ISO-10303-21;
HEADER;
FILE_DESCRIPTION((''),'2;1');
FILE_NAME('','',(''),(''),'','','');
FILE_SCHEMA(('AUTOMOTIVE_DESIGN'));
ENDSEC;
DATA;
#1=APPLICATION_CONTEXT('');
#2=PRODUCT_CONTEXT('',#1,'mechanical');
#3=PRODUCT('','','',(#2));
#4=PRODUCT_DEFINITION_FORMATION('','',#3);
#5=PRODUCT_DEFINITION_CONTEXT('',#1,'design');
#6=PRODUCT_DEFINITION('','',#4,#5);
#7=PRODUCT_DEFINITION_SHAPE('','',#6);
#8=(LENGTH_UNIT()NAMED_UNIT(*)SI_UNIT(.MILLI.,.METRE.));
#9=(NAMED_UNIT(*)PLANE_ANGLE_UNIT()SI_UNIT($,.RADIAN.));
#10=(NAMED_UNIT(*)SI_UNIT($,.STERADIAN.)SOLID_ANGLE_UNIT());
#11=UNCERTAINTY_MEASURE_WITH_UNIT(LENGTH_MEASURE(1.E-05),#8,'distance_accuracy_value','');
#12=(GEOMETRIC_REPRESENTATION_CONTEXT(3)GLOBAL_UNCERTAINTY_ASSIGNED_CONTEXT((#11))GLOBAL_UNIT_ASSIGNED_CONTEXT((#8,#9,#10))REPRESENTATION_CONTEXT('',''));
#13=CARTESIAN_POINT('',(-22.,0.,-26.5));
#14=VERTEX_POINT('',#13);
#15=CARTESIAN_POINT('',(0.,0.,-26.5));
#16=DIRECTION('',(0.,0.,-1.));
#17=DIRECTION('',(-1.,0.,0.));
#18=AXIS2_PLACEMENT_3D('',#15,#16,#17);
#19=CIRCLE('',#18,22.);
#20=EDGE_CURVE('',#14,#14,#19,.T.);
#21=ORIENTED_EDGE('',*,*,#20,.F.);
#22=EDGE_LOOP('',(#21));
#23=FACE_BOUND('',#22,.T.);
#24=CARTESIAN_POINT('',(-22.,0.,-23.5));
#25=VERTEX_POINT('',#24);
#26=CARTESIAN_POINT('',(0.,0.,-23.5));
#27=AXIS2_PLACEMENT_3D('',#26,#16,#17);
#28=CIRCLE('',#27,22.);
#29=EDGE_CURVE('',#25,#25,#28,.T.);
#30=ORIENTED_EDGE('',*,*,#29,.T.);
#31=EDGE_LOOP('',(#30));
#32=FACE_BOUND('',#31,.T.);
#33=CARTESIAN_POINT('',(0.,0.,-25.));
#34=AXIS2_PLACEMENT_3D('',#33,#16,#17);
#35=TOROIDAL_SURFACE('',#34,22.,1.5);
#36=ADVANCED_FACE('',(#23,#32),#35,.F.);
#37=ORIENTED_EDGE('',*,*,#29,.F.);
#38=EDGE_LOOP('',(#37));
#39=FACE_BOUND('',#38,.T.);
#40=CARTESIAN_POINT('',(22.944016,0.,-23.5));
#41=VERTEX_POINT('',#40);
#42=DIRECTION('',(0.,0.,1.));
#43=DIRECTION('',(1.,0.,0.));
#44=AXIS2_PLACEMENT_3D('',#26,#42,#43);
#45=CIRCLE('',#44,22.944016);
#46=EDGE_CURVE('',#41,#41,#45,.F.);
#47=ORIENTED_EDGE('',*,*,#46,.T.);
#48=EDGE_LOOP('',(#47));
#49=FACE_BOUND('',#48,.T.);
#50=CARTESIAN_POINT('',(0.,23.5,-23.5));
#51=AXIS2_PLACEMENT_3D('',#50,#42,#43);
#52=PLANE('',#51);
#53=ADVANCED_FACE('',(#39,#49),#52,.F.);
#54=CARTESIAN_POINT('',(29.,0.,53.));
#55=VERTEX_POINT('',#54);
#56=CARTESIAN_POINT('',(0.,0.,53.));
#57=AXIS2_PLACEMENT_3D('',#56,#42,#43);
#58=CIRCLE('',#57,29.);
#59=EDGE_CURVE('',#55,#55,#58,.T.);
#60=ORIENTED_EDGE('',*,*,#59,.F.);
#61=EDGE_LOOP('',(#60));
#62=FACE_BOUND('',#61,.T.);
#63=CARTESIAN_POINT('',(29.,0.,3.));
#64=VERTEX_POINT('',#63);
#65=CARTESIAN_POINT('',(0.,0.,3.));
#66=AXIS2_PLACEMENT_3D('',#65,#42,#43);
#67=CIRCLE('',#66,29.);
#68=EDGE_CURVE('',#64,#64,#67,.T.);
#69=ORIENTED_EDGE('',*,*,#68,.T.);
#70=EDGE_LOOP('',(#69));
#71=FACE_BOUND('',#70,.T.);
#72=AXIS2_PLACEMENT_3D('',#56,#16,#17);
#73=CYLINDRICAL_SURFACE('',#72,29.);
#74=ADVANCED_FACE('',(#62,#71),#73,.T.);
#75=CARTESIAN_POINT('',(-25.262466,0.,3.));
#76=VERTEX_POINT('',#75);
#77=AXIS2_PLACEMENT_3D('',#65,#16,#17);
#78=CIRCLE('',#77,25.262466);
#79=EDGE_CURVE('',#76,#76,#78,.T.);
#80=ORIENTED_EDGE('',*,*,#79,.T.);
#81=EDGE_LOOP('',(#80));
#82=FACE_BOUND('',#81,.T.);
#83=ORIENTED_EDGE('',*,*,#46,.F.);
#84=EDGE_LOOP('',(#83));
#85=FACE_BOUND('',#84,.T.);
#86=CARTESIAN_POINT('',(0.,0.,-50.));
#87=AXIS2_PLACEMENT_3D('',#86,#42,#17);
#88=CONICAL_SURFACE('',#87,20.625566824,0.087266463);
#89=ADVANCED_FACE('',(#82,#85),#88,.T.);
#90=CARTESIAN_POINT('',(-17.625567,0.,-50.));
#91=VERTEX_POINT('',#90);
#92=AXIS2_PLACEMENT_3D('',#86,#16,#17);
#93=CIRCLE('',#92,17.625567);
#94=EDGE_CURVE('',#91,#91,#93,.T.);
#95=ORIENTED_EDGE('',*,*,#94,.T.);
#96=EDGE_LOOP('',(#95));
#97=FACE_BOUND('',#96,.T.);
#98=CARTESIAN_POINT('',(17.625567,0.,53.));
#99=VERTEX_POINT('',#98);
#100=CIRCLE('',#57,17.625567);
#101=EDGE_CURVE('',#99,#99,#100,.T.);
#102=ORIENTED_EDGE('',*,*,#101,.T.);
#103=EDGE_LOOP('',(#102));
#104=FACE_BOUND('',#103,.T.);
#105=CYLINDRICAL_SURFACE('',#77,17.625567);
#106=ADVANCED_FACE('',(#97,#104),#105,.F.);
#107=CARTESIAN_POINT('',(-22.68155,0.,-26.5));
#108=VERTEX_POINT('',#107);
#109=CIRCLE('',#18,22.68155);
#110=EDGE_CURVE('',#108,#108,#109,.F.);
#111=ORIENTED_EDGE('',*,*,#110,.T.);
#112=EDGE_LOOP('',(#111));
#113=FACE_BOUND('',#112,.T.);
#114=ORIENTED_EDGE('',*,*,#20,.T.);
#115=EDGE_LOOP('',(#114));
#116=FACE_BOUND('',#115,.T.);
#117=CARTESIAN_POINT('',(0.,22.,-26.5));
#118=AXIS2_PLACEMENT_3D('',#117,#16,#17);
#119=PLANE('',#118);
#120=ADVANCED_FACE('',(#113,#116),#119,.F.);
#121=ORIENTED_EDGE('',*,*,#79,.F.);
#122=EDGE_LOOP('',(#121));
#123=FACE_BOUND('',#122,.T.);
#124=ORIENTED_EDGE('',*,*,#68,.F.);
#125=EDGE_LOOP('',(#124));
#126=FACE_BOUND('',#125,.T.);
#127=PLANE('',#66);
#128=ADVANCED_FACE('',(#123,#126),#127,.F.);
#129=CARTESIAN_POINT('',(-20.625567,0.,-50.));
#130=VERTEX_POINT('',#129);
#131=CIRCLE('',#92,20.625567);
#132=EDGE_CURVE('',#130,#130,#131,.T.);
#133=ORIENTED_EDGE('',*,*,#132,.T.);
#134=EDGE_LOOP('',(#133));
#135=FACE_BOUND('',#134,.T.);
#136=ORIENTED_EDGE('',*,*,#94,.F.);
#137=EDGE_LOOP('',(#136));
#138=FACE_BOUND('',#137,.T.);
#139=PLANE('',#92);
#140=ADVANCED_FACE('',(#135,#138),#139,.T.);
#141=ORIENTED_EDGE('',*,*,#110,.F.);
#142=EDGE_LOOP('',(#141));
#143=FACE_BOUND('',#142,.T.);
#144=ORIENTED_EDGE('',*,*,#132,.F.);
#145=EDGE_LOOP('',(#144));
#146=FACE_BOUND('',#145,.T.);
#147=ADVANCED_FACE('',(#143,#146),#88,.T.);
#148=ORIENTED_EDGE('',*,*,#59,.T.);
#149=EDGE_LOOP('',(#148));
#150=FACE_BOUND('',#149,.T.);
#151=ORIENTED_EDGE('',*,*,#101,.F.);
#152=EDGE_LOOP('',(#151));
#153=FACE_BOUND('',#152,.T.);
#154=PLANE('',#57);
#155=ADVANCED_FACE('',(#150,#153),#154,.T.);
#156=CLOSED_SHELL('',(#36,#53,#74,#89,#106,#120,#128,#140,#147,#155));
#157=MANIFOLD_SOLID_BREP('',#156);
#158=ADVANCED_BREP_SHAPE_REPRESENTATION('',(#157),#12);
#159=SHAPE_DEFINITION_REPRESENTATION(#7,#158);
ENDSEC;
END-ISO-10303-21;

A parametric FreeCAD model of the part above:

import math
import FreeCAD as App
import Part
import Sketcher
from FreeCAD import Vector
Q = App.Units.Quantity


def faces_at(feature, points):
    """Names of the faces that lie closest to the given points."""
    faces = feature.Shape.Faces
    near = lambda p: min(range(len(faces)), key=lambda i: faces[i].distToShape(Part.Vertex(*p))[0])
    return sorted({f"Face{near(p) + 1}" for p in points})

doc = App.newDocument("Part")
body = doc.addObject("PartDesign::Body", "Body")

sketch1 = doc.addObject("Sketcher::SketchObject", "Sketch")
body.addObject(sketch1)
sketch1.AttachmentSupport = (doc.XY_Plane, [""])
sketch1.MapMode = "FlatFace"
sketch1.AttachmentOffset = App.Placement(Vector(0, 0, -50), App.Rotation())
sketch1.addGeometry(Part.Circle(Vector(0, 0, 0), Vector(0, 0, 1), 20.625567), False)
sketch1.addConstraint([
    Sketcher.Constraint("Coincident", 0, 3, -1, 1),
    Sketcher.Constraint("Diameter", 0, Q("41.251134 mm")),
])
pad1 = doc.addObject("PartDesign::Pad", "Pad")
body.addObject(pad1)
pad1.Profile = sketch1
pad1.Length = 53
doc.recompute()

datumplane = doc.addObject("PartDesign::Plane", "DatumPlane")
body.addObject(datumplane)
datumplane.AttachmentSupport = (doc.XY_Plane, [""])
datumplane.MapMode = "FlatFace"
datumplane.AttachmentOffset = App.Placement(Vector(0, 0, -50), App.Rotation())
draft = doc.addObject("PartDesign::Draft", "Draft")
body.addObject(draft)
draft.Base = (pad1, faces_at(pad1, [(20.626, 0, -23.5)]))
draft.NeutralPlane = (datumplane, [""])
draft.Angle = 5
draft.Reversed = True

sketch2 = doc.addObject("Sketcher::SketchObject", "Sketch001")
body.addObject(sketch2)
sketch2.AttachmentSupport = (doc.XY_Plane, [""])
sketch2.MapMode = "FlatFace"
sketch2.AttachmentOffset = App.Placement(Vector(0, 0, -50), App.Rotation())
sketch2.addGeometry(Part.Circle(Vector(0, 0, 0), Vector(0, 0, 1), 17.625567), False)
sketch2.addConstraint([
    Sketcher.Constraint("Coincident", 0, 3, -1, 1),
    Sketcher.Constraint("Diameter", 0, Q("35.251134 mm")),
])
pocket1 = doc.addObject("PartDesign::Pocket", "Pocket")
body.addObject(pocket1)
pocket1.Profile = sketch2
pocket1.Type = "ThroughAll"
pocket1.Reversed = True

sketch3 = doc.addObject("Sketcher::SketchObject", "Sketch002")
body.addObject(sketch3)
sketch3.AttachmentSupport = (doc.YZ_Plane, [""])
sketch3.MapMode = "FlatFace"
sketch3.addGeometry([
    Part.LineSegment(Vector(22, -26.5, 0), Vector(23.5, -26.5, 0)),
    Part.LineSegment(Vector(23.5, -26.5, 0), Vector(23.5, -23.5, 0)),
    Part.LineSegment(Vector(23.5, -23.5, 0), Vector(22, -23.5, 0)),
    Part.ArcOfCircle(Part.Circle(Vector(22, -25, 0), Vector(0, 0, 1), 1.5), math.radians(90), math.radians(270)),
], False)
sketch3.addConstraint([
    Sketcher.Constraint("Coincident", 0, 2, 1, 1),
    Sketcher.Constraint("Coincident", 1, 2, 2, 1),
    Sketcher.Constraint("Tangent", 2, 2, 3, 1),
    Sketcher.Constraint("Tangent", 3, 2, 0, 1),
    Sketcher.Constraint("Horizontal", 0),
    Sketcher.Constraint("Vertical", 1),
    Sketcher.Constraint("Horizontal", 2),
    Sketcher.Constraint("Radius", 3, Q("1.5 mm")),
    Sketcher.Constraint("DistanceX", 0, 1, 0, 2, Q("1.5 mm")),
    Sketcher.Constraint("DistanceX", -1, 1, 3, 3, Q("22 mm")),
    Sketcher.Constraint("DistanceY", 3, 3, -1, 1, Q("25 mm")),
])
groove = doc.addObject("PartDesign::Groove", "Groove")
body.addObject(groove)
groove.Profile = sketch3
groove.ReferenceAxis = (sketch3, ["V_Axis"])
groove.Angle = 360

sketch4 = doc.addObject("Sketcher::SketchObject", "Sketch003")
body.addObject(sketch4)
sketch4.AttachmentSupport = (doc.XY_Plane, [""])
sketch4.MapMode = "FlatFace"
sketch4.AttachmentOffset = App.Placement(Vector(0, 0, 3), App.Rotation())
sketch4.addGeometry([
    Part.Circle(Vector(0, 0, 0), Vector(0, 0, 1), 29),
    Part.Circle(Vector(0, 0, 0), Vector(0, 0, 1), 17.625567),
], False)
sketch4.addConstraint([
    Sketcher.Constraint("Coincident", 0, 3, -1, 1),
    Sketcher.Constraint("Coincident", 1, 3, -1, 1),
    Sketcher.Constraint("Diameter", 0, Q("58 mm")),
    Sketcher.Constraint("Diameter", 1, Q("35.251134 mm")),
])
pad2 = doc.addObject("PartDesign::Pad", "Pad001")
body.addObject(pad2)
pad2.Profile = sketch4
pad2.Length = 50

doc.recompute()
